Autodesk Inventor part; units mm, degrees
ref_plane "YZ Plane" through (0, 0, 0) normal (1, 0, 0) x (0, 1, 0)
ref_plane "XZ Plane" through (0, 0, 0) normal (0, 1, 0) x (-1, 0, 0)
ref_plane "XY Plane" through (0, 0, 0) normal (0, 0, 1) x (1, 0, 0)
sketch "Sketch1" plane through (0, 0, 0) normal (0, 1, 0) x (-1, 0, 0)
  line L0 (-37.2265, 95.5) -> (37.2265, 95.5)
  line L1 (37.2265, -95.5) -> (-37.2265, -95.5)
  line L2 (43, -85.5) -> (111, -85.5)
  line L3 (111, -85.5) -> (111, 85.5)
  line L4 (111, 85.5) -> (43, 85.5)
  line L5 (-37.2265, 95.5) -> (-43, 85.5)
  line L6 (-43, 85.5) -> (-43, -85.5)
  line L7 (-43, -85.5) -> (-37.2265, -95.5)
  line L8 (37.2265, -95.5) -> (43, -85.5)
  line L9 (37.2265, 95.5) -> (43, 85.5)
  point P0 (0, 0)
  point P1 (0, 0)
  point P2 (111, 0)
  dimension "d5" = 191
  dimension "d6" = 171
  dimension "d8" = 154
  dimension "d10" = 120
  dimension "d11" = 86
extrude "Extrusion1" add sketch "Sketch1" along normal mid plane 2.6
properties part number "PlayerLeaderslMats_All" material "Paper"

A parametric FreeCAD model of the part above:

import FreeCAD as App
import Part
import Sketcher
from FreeCAD import Vector
Q = App.Units.Quantity

doc = App.newDocument("Part")
body = doc.addObject("PartDesign::Body", "Body")

# Sketch on XZ plane
sketch1 = body.newObject("Sketcher::SketchObject", "Sketch")
sketch1.AttachmentSupport = (doc.getObject("XZ_Plane"), [""])
sketch1.MapMode = "FlatFace"
sketch1.addGeometry([
    Part.LineSegment(Vector(-37, 96, 0), Vector(37, 96, 0)),  # 0
    Part.LineSegment(Vector(37, 96, 0), Vector(43, 86, 0)),  # 1
    Part.LineSegment(Vector(43, 86, 0), Vector(43, -86, 0)),  # 2
    Part.LineSegment(Vector(43, -86, 0), Vector(37, -96, 0)),  # 3
    Part.LineSegment(Vector(37, -96, 0), Vector(-37, -96, 0)),  # 4
    Part.LineSegment(Vector(-37, -96, 0), Vector(-43, -86, 0)),  # 5
    Part.LineSegment(Vector(-43, -86, 0), Vector(-111, -86, 0)),  # 6
    Part.LineSegment(Vector(-111, -86, 0), Vector(-111, 86, 0)),  # 7
    Part.LineSegment(Vector(-111, 86, 0), Vector(-43, 86, 0)),  # 8
    Part.LineSegment(Vector(-43, 86, 0), Vector(-37, 96, 0)),  # 9
], False)
sketch1.addConstraint([
    Sketcher.Constraint("Coincident", 0, 2, 1, 1),
    Sketcher.Constraint("Coincident", 1, 2, 2, 1),
    Sketcher.Constraint("Coincident", 2, 2, 3, 1),
    Sketcher.Constraint("Coincident", 3, 2, 4, 1),
    Sketcher.Constraint("Coincident", 4, 2, 5, 1),
    Sketcher.Constraint("Coincident", 5, 2, 6, 1),
    Sketcher.Constraint("Coincident", 6, 2, 7, 1),
    Sketcher.Constraint("Coincident", 7, 2, 8, 1),
    Sketcher.Constraint("Coincident", 8, 2, 9, 1),
    Sketcher.Constraint("Coincident", 9, 2, 0, 1),
    Sketcher.Constraint("Horizontal", 0),
    Sketcher.Constraint("Vertical", 2),
    Sketcher.Constraint("Horizontal", 4),
    Sketcher.Constraint("Horizontal", 6),
    Sketcher.Constraint("Vertical", 7),
    Sketcher.Constraint("Horizontal", 8),
    Sketcher.Constraint("Symmetric", 0, 2, 4, 2, -1, 1),
    Sketcher.Constraint("Symmetric", 1, 2, 5, 2, -1, 1),
    Sketcher.Constraint("Symmetric", 2, 2, 8, 2, -1, 1),
    Sketcher.Constraint("Parallel", 3, 9),
    Sketcher.Constraint("Horizontal", 2, 2, 5, 2),
    Sketcher.Constraint("Vertical", 0, 2, 3, 2),
    Sketcher.Constraint("DistanceY", 2, 2, 2, 1, 171.0),
    Sketcher.Constraint("Angle", 3, Q("-120 deg")),
    Sketcher.Constraint("DistanceY", 3, 2, 0, 2, 191.0),
    Sketcher.Constraint("DistanceX", 5, 2, 2, 2, 86.0),
    Sketcher.Constraint("DistanceX", 6, 2, 2, 2, 154.0),
])
pad1 = body.newObject("PartDesign::Pad", "Pad")
pad1.Profile = sketch1
pad1.Length = 2.6
pad1.Midplane = True

doc.recompute()
